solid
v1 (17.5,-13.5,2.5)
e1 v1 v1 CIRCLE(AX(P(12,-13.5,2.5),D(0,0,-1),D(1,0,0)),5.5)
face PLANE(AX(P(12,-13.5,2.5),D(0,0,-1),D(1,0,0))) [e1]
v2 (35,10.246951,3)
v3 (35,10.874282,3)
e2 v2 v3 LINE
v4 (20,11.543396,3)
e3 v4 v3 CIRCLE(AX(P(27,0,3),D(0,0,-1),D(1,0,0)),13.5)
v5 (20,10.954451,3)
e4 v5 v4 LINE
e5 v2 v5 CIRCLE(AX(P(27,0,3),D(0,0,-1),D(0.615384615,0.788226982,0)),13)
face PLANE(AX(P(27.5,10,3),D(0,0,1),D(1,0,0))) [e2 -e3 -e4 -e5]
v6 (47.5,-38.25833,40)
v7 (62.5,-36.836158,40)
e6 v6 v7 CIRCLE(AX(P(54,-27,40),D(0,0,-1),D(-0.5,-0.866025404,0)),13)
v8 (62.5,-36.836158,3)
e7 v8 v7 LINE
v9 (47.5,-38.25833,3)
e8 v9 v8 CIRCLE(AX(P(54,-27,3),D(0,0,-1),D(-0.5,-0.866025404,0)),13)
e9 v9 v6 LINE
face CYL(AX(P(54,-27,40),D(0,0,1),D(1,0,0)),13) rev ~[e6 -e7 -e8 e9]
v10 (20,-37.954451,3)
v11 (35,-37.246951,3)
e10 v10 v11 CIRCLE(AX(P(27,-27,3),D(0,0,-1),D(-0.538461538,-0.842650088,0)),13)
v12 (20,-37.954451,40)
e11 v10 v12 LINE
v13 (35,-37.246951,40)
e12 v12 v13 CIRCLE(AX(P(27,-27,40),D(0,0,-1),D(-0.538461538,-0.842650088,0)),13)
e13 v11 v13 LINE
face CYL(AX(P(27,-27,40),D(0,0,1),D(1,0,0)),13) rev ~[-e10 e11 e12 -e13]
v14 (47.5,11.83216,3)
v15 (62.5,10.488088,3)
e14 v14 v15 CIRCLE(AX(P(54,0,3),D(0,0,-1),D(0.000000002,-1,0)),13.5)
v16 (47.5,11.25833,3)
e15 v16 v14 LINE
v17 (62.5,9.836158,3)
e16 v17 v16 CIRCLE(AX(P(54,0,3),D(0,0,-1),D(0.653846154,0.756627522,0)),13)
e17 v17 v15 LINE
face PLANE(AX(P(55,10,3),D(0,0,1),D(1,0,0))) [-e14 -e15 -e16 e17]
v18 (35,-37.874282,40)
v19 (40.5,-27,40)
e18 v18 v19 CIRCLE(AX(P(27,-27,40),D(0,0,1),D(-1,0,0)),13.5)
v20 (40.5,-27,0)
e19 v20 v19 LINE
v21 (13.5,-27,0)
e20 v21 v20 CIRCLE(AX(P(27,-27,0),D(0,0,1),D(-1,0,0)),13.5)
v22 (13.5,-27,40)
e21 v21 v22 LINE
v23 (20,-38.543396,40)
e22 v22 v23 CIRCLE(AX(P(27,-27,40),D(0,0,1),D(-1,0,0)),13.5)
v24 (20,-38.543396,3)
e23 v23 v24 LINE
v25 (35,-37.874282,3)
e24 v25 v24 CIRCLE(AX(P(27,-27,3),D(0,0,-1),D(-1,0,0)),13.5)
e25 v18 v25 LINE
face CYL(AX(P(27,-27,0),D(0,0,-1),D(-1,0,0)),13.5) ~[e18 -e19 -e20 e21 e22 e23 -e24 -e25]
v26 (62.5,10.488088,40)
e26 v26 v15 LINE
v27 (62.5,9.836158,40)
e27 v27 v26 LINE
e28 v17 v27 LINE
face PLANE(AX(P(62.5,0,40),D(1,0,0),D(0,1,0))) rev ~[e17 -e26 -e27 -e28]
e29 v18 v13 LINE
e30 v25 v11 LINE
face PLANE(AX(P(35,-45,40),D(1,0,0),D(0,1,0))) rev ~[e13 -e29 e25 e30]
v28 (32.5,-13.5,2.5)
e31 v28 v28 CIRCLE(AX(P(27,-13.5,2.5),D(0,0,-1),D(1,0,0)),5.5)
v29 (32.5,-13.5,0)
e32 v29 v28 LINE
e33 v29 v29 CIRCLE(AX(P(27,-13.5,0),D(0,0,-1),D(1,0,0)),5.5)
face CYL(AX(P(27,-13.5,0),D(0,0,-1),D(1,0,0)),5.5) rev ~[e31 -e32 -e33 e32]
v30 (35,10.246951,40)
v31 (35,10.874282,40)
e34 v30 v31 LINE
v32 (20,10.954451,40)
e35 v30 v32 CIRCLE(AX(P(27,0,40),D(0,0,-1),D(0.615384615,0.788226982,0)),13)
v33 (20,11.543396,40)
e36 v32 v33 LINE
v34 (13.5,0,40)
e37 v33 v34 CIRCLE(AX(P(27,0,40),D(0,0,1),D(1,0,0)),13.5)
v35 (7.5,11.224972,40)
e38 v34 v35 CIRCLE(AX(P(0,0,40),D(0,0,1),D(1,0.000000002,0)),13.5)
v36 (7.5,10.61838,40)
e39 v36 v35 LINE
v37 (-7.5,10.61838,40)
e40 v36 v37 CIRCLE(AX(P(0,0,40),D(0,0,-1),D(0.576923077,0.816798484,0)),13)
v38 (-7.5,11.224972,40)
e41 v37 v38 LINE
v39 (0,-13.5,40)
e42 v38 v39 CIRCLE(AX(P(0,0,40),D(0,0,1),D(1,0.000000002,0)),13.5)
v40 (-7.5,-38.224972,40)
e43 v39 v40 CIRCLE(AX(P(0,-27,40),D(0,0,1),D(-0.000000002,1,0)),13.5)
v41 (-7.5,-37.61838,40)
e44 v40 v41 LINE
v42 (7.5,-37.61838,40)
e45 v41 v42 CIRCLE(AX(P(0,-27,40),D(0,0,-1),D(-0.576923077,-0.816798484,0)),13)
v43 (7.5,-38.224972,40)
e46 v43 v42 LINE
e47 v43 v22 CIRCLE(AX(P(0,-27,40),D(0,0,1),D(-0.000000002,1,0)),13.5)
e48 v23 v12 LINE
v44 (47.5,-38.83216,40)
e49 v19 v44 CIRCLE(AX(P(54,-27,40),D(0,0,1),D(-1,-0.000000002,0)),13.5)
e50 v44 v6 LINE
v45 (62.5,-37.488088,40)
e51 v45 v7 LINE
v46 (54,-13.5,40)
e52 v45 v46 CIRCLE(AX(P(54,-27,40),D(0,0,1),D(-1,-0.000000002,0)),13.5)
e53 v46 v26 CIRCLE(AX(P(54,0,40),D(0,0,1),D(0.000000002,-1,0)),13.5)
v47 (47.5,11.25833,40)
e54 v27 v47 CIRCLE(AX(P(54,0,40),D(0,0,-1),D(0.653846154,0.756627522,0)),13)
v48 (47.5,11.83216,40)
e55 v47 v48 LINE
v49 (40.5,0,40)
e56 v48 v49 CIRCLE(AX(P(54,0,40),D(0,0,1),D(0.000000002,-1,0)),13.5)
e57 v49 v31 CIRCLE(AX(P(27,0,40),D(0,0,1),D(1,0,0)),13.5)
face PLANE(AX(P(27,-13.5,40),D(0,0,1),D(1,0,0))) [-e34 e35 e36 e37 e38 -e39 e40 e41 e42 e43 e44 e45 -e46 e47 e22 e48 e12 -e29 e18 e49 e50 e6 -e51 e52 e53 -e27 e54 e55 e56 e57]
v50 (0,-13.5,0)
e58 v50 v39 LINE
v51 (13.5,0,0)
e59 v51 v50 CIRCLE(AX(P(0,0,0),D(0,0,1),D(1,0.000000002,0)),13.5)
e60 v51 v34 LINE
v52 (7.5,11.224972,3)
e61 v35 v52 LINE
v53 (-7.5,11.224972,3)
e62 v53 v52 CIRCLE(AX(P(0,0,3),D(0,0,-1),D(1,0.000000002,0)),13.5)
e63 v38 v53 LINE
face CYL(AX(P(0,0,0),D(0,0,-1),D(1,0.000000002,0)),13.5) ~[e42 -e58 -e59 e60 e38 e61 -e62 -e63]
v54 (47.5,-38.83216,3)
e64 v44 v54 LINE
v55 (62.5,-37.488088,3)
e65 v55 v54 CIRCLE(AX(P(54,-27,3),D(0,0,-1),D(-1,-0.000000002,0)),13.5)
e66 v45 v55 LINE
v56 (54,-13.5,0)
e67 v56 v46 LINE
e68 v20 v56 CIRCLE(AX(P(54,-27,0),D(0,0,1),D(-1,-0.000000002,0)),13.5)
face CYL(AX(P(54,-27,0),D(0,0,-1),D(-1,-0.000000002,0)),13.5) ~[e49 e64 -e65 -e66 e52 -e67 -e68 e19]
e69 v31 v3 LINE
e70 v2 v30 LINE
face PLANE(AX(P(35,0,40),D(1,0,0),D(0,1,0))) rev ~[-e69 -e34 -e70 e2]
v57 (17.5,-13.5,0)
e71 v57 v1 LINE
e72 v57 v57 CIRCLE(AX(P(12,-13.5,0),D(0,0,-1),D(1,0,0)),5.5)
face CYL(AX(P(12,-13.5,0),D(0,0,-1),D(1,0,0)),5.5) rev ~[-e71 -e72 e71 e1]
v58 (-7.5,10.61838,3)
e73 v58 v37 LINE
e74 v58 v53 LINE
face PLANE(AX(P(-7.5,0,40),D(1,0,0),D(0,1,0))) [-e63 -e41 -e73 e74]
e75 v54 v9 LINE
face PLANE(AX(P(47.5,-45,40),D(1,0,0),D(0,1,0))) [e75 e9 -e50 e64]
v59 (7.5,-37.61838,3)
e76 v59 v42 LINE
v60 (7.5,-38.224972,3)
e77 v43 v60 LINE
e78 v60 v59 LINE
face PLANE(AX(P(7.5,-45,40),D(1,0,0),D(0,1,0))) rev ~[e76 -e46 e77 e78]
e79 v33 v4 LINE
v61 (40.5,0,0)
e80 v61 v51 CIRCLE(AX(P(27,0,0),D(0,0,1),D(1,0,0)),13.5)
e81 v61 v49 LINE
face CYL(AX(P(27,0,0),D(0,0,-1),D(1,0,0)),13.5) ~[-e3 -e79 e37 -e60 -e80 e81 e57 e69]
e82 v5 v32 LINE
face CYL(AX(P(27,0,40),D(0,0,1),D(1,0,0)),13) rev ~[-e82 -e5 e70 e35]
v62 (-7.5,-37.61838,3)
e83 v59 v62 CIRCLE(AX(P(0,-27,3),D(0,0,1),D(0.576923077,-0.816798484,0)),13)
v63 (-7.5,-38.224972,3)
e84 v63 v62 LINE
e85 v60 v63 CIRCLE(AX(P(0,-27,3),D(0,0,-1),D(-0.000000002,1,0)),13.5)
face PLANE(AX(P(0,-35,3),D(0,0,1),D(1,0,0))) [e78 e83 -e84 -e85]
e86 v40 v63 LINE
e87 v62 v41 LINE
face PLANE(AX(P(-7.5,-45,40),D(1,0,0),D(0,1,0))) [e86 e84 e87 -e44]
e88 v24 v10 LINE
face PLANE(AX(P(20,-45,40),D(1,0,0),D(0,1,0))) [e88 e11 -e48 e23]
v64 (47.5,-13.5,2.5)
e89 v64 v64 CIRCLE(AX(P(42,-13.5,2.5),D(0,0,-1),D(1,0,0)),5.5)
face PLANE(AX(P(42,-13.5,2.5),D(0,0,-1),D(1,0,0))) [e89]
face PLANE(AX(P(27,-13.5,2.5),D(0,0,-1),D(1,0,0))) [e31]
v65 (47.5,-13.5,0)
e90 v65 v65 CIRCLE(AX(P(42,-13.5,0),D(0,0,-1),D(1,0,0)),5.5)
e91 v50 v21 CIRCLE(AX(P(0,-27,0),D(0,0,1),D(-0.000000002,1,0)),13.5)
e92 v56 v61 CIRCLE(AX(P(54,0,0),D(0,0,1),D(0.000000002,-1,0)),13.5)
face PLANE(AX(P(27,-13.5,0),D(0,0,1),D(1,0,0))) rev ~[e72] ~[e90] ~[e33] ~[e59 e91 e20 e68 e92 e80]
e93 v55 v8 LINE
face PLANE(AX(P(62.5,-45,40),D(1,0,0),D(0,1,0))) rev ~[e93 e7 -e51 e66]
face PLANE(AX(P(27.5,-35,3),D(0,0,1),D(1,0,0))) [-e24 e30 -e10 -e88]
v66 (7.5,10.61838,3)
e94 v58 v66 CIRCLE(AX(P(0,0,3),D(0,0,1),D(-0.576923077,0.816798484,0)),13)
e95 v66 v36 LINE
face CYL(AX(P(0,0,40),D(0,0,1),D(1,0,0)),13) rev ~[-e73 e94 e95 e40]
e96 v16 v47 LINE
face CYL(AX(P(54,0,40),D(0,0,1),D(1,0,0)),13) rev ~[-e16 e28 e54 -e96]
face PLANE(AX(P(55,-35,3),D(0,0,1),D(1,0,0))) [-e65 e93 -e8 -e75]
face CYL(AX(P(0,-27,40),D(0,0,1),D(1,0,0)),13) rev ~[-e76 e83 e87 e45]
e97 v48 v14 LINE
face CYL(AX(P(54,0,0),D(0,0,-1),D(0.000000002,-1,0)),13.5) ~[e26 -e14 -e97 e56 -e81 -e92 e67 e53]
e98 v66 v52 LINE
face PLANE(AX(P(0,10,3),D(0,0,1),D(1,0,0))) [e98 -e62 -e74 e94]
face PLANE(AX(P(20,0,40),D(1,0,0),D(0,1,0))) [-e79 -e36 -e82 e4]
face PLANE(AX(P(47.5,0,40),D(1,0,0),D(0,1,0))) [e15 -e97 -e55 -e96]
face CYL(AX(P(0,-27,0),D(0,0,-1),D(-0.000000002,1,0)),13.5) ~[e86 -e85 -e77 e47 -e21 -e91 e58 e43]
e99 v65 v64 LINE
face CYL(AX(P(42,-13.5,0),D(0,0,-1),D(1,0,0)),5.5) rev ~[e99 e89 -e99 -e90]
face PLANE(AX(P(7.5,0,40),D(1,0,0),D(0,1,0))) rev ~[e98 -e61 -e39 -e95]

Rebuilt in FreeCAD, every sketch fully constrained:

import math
import FreeCAD as App
import Part
import Sketcher


def add_polygon(sketch, points):
    """Adds a closed chain of lines whose ends are joined by coincident constraints."""
    first, n = sketch.GeometryCount, len(points)
    for a, b in zip(points, points[1:] + points[:1]):
        sketch.addGeometry(Part.LineSegment(App.Vector(*a, 0), App.Vector(*b, 0)), False)
    for i in range(n):
        sketch.addConstraint(Sketcher.Constraint("Coincident", first + i, 2, first + (i + 1) % n, 1))

doc = App.newDocument("Part")
body = doc.addObject("PartDesign::Body", "Body")

# Sketch on XY plane
sketch1 = body.newObject("Sketcher::SketchObject", "Sketch")
sketch1.AttachmentSupport = (doc.getObject("XY_Plane"), [""])
sketch1.MapMode = "FlatFace"
sketch1.addGeometry(Part.ArcOfCircle(Part.Circle(App.Vector(0, 0, 0), App.Vector(0, 0, 1), 13), math.radians(0), math.radians(270)), False)
sketch1.addGeometry(Part.ArcOfCircle(Part.Circle(App.Vector(0, -27, 0), App.Vector(0, 0, 1), 13), math.radians(90), math.radians(360)), False)
sketch1.addGeometry(Part.ArcOfCircle(Part.Circle(App.Vector(27, -27, 0), App.Vector(0, 0, 1), 14), math.radians(180), math.radians(360)), False)
sketch1.addGeometry(Part.ArcOfCircle(Part.Circle(App.Vector(54, -27, 0), App.Vector(0, 0, 1), 13), math.radians(-180), math.radians(90)), False)
sketch1.addGeometry(Part.ArcOfCircle(Part.Circle(App.Vector(54, 0, 0), App.Vector(0, 0, 1), 13), math.radians(-90), math.radians(180)), False)
sketch1.addGeometry(Part.ArcOfCircle(Part.Circle(App.Vector(27, 0, 0), App.Vector(0, 0, 1), 14), math.radians(0), math.radians(180)), False)
sketch1.addConstraint(Sketcher.Constraint("Tangent", 0, 2, 1, 1))
sketch1.addConstraint(Sketcher.Constraint("Tangent", 1, 2, 2, 1))
sketch1.addConstraint(Sketcher.Constraint("Tangent", 2, 2, 3, 1))
sketch1.addConstraint(Sketcher.Constraint("Tangent", 3, 2, 4, 1))
sketch1.addConstraint(Sketcher.Constraint("Tangent", 4, 2, 5, 1))
sketch1.addConstraint(Sketcher.Constraint("Tangent", 5, 2, 0, 1))
sketch1.addConstraint(Sketcher.Constraint("Coincident", 0, 3, -1, 1))
sketch1.addConstraint(Sketcher.Constraint("Equal", 0, 1))
sketch1.addConstraint(Sketcher.Constraint("Equal", 1, 2))
sketch1.addConstraint(Sketcher.Constraint("Equal", 2, 3))
sketch1.addConstraint(Sketcher.Constraint("Equal", 3, 4))
sketch1.addConstraint(Sketcher.Constraint("Equal", 4, 5))
sketch1.addConstraint(Sketcher.Constraint("PointOnObject", 1, 3, -2))
sketch1.addConstraint(Sketcher.Constraint("PointOnObject", 4, 3, -1))
sketch1.addConstraint(Sketcher.Constraint("PointOnObject", 5, 3, -1))
sketch1.addConstraint(Sketcher.Constraint("Horizontal", 1, 3, 2, 3))
sketch1.addConstraint(Sketcher.Constraint("Radius", 0, 13.5))
pad1 = body.newObject("PartDesign::Pad", "Pad")
pad1.Profile = sketch1
pad1.Length = 40

# Sketch on XY plane
sketch2 = body.newObject("Sketcher::SketchObject", "Sketch001")
sketch2.AttachmentSupport = (doc.getObject("XY_Plane"), [""])
sketch2.MapMode = "FlatFace"
sketch2.AttachmentOffset = App.Placement(App.Vector(0, 0, 40), App.Rotation())
sketch2.addGeometry(Part.Circle(App.Vector(0, 0, 0), App.Vector(0, 0, 1), 13), False)
sketch2.addGeometry(Part.Circle(App.Vector(0, -27, 0), App.Vector(0, 0, 1), 13), False)
sketch2.addGeometry(Part.Circle(App.Vector(27, 0, 0), App.Vector(0, 0, 1), 13), False)
sketch2.addGeometry(Part.Circle(App.Vector(27, -27, 0), App.Vector(0, 0, 1), 13), False)
sketch2.addGeometry(Part.Circle(App.Vector(54, 0, 0), App.Vector(0, 0, 1), 13), False)
sketch2.addGeometry(Part.Circle(App.Vector(54, -27, 0), App.Vector(0, 0, 1), 13), False)
sketch2.addConstraint(Sketcher.Constraint("Coincident", 0, 3, -1, 1))
sketch2.addConstraint(Sketcher.Constraint("Equal", 0, 1))
sketch2.addConstraint(Sketcher.Constraint("Equal", 1, 2))
sketch2.addConstraint(Sketcher.Constraint("Equal", 2, 3))
sketch2.addConstraint(Sketcher.Constraint("Equal", 3, 4))
sketch2.addConstraint(Sketcher.Constraint("Equal", 4, 5))
sketch2.addConstraint(Sketcher.Constraint("PointOnObject", 1, 3, -2))
sketch2.addConstraint(Sketcher.Constraint("PointOnObject", 2, 3, -1))
sketch2.addConstraint(Sketcher.Constraint("PointOnObject", 4, 3, -1))
sketch2.addConstraint(Sketcher.Constraint("Horizontal", 1, 3, 3, 3))
sketch2.addConstraint(Sketcher.Constraint("Horizontal", 3, 3, 5, 3))
sketch2.addConstraint(Sketcher.Constraint("Vertical", 2, 3, 3, 3))
sketch2.addConstraint(Sketcher.Constraint("Vertical", 4, 3, 5, 3))
sketch2.addConstraint(Sketcher.Constraint("Diameter", 0, 26.0))
sketch2.addConstraint(Sketcher.Constraint("DistanceY", 1, 3, -1, 1, 27.0))
sketch2.addConstraint(Sketcher.Constraint("DistanceX", -1, 1, 2, 3, 27.0))
sketch2.addConstraint(Sketcher.Constraint("DistanceX", -1, 1, 4, 3, 54.0))
pocket1 = body.newObject("PartDesign::Pocket", "Pocket")
pocket1.Profile = sketch2
pocket1.Length = 37

# Sketch on XY plane
sketch3 = body.newObject("Sketcher::SketchObject", "Sketch002")
sketch3.AttachmentSupport = (doc.getObject("XY_Plane"), [""])
sketch3.MapMode = "FlatFace"
sketch3.AttachmentOffset = App.Placement(App.Vector(0, 0, 40), App.Rotation())
add_polygon(sketch3, [(-8, 20), (-8, 0), (8, 0), (8, 20)])  # lines 0-3
add_polygon(sketch3, [(-8, -25), (-8, -45), (8, -45), (8, -25)])  # lines 4-7
add_polygon(sketch3, [(20, 20), (20, 0), (35, 0), (35, 20)])  # lines 8-11
add_polygon(sketch3, [(48, 20), (48, 0), (62, 0), (62, 20)])  # lines 12-15
add_polygon(sketch3, [(20, -25), (20, -45), (35, -45), (35, -25)])  # lines 16-19
add_polygon(sketch3, [(48, -25), (48, -45), (62, -45), (62, -25)])  # lines 20-23
sketch3.addConstraint(Sketcher.Constraint("Vertical", 0))
sketch3.addConstraint(Sketcher.Constraint("Horizontal", 1))
sketch3.addConstraint(Sketcher.Constraint("Vertical", 2))
sketch3.addConstraint(Sketcher.Constraint("Horizontal", 3))
sketch3.addConstraint(Sketcher.Constraint("Vertical", 4))
sketch3.addConstraint(Sketcher.Constraint("Horizontal", 5))
sketch3.addConstraint(Sketcher.Constraint("Vertical", 6))
sketch3.addConstraint(Sketcher.Constraint("Horizontal", 7))
sketch3.addConstraint(Sketcher.Constraint("Vertical", 8))
sketch3.addConstraint(Sketcher.Constraint("Horizontal", 9))
sketch3.addConstraint(Sketcher.Constraint("Vertical", 10))
sketch3.addConstraint(Sketcher.Constraint("Horizontal", 11))
sketch3.addConstraint(Sketcher.Constraint("Vertical", 12))
sketch3.addConstraint(Sketcher.Constraint("Horizontal", 13))
sketch3.addConstraint(Sketcher.Constraint("Vertical", 14))
sketch3.addConstraint(Sketcher.Constraint("Horizontal", 15))
sketch3.addConstraint(Sketcher.Constraint("Vertical", 16))
sketch3.addConstraint(Sketcher.Constraint("Horizontal", 17))
sketch3.addConstraint(Sketcher.Constraint("Vertical", 18))
sketch3.addConstraint(Sketcher.Constraint("Horizontal", 19))
sketch3.addConstraint(Sketcher.Constraint("Vertical", 20))
sketch3.addConstraint(Sketcher.Constraint("Horizontal", 21))
sketch3.addConstraint(Sketcher.Constraint("Vertical", 22))
sketch3.addConstraint(Sketcher.Constraint("Horizontal", 23))
sketch3.addConstraint(Sketcher.Constraint("Symmetric", 0, 2, 1, 2, -1, 1))
sketch3.addConstraint(Sketcher.Constraint("PointOnObject", 8, 2, -1))
sketch3.addConstraint(Sketcher.Constraint("PointOnObject", 12, 2, -1))
sketch3.addConstraint(Sketcher.Constraint("Horizontal", 3, 2, 10, 2))
sketch3.addConstraint(Sketcher.Constraint("Horizontal", 11, 2, 14, 2))
sketch3.addConstraint(Sketcher.Constraint("Horizontal", 5, 2, 16, 2))
sketch3.addConstraint(Sketcher.Constraint("Horizontal", 7, 2, 18, 2))
sketch3.addConstraint(Sketcher.Constraint("Horizontal", 17, 2, 20, 2))
sketch3.addConstraint(Sketcher.Constraint("Horizontal", 19, 2, 22, 2))
sketch3.addConstraint(Sketcher.Constraint("Vertical", 3, 2, 4, 2))
sketch3.addConstraint(Sketcher.Constraint("Vertical", 2, 2, 5, 2))
sketch3.addConstraint(Sketcher.Constraint("Vertical", 11, 2, 16, 2))
sketch3.addConstraint(Sketcher.Constraint("Vertical", 10, 2, 17, 2))
sketch3.addConstraint(Sketcher.Constraint("Vertical", 15, 2, 20, 2))
sketch3.addConstraint(Sketcher.Constraint("Vertical", 14, 2, 21, 2))
sketch3.addConstraint(Sketcher.Constraint("Equal", 7, 9))
sketch3.addConstraint(Sketcher.Constraint("Equal", 11, 13))
sketch3.addConstraint(Sketcher.Constraint("Equal", 2, 4))
sketch3.addConstraint(Sketcher.Constraint("DistanceX", 1, 1, 1, 2, 15.0))
sketch3.addConstraint(Sketcher.Constraint("DistanceY", 0, 2, 0, 1, 20.0))
sketch3.addConstraint(Sketcher.Constraint("DistanceY", 4, 2, -1, 1, 45.0))
sketch3.addConstraint(Sketcher.Constraint("DistanceX", -1, 1, 8, 2, 20.0))
sketch3.addConstraint(Sketcher.Constraint("DistanceX", 1, 2, 12, 2, 40.0))
pocket2 = body.newObject("PartDesign::Pocket", "Pocket001")
pocket2.Profile = sketch3
pocket2.Length = 37

# Sketch on XY plane
sketch4 = body.newObject("Sketcher::SketchObject", "Sketch003")
sketch4.AttachmentSupport = (doc.getObject("XY_Plane"), [""])
sketch4.MapMode = "FlatFace"
sketch4.addGeometry(Part.Circle(App.Vector(12, -14, 0), App.Vector(0, 0, 1), 6), False)
sketch4.addGeometry(Part.Circle(App.Vector(27, -14, 0), App.Vector(0, 0, 1), 6), False)
sketch4.addGeometry(Part.Circle(App.Vector(42, -14, 0), App.Vector(0, 0, 1), 6), False)
sketch4.addConstraint(Sketcher.Constraint("Equal", 0, 1))
sketch4.addConstraint(Sketcher.Constraint("Equal", 1, 2))
sketch4.addConstraint(Sketcher.Constraint("Horizontal", 0, 3, 1, 3))
sketch4.addConstraint(Sketcher.Constraint("Horizontal", 1, 3, 2, 3))
sketch4.addConstraint(Sketcher.Constraint("Diameter", 0, 11.0))
sketch4.addConstraint(Sketcher.Constraint("DistanceX", -1, 1, 0, 3, 12.0))
sketch4.addConstraint(Sketcher.Constraint("DistanceX", -1, 1, 1, 3, 27.0))
sketch4.addConstraint(Sketcher.Constraint("DistanceX", -1, 1, 2, 3, 42.0))
sketch4.addConstraint(Sketcher.Constraint("DistanceY", 0, 3, -1, 1, 13.5))
pocket3 = body.newObject("PartDesign::Pocket", "Pocket002")
pocket3.Profile = sketch4
pocket3.Length = 2.5
pocket3.Reversed = True

doc.recompute()
